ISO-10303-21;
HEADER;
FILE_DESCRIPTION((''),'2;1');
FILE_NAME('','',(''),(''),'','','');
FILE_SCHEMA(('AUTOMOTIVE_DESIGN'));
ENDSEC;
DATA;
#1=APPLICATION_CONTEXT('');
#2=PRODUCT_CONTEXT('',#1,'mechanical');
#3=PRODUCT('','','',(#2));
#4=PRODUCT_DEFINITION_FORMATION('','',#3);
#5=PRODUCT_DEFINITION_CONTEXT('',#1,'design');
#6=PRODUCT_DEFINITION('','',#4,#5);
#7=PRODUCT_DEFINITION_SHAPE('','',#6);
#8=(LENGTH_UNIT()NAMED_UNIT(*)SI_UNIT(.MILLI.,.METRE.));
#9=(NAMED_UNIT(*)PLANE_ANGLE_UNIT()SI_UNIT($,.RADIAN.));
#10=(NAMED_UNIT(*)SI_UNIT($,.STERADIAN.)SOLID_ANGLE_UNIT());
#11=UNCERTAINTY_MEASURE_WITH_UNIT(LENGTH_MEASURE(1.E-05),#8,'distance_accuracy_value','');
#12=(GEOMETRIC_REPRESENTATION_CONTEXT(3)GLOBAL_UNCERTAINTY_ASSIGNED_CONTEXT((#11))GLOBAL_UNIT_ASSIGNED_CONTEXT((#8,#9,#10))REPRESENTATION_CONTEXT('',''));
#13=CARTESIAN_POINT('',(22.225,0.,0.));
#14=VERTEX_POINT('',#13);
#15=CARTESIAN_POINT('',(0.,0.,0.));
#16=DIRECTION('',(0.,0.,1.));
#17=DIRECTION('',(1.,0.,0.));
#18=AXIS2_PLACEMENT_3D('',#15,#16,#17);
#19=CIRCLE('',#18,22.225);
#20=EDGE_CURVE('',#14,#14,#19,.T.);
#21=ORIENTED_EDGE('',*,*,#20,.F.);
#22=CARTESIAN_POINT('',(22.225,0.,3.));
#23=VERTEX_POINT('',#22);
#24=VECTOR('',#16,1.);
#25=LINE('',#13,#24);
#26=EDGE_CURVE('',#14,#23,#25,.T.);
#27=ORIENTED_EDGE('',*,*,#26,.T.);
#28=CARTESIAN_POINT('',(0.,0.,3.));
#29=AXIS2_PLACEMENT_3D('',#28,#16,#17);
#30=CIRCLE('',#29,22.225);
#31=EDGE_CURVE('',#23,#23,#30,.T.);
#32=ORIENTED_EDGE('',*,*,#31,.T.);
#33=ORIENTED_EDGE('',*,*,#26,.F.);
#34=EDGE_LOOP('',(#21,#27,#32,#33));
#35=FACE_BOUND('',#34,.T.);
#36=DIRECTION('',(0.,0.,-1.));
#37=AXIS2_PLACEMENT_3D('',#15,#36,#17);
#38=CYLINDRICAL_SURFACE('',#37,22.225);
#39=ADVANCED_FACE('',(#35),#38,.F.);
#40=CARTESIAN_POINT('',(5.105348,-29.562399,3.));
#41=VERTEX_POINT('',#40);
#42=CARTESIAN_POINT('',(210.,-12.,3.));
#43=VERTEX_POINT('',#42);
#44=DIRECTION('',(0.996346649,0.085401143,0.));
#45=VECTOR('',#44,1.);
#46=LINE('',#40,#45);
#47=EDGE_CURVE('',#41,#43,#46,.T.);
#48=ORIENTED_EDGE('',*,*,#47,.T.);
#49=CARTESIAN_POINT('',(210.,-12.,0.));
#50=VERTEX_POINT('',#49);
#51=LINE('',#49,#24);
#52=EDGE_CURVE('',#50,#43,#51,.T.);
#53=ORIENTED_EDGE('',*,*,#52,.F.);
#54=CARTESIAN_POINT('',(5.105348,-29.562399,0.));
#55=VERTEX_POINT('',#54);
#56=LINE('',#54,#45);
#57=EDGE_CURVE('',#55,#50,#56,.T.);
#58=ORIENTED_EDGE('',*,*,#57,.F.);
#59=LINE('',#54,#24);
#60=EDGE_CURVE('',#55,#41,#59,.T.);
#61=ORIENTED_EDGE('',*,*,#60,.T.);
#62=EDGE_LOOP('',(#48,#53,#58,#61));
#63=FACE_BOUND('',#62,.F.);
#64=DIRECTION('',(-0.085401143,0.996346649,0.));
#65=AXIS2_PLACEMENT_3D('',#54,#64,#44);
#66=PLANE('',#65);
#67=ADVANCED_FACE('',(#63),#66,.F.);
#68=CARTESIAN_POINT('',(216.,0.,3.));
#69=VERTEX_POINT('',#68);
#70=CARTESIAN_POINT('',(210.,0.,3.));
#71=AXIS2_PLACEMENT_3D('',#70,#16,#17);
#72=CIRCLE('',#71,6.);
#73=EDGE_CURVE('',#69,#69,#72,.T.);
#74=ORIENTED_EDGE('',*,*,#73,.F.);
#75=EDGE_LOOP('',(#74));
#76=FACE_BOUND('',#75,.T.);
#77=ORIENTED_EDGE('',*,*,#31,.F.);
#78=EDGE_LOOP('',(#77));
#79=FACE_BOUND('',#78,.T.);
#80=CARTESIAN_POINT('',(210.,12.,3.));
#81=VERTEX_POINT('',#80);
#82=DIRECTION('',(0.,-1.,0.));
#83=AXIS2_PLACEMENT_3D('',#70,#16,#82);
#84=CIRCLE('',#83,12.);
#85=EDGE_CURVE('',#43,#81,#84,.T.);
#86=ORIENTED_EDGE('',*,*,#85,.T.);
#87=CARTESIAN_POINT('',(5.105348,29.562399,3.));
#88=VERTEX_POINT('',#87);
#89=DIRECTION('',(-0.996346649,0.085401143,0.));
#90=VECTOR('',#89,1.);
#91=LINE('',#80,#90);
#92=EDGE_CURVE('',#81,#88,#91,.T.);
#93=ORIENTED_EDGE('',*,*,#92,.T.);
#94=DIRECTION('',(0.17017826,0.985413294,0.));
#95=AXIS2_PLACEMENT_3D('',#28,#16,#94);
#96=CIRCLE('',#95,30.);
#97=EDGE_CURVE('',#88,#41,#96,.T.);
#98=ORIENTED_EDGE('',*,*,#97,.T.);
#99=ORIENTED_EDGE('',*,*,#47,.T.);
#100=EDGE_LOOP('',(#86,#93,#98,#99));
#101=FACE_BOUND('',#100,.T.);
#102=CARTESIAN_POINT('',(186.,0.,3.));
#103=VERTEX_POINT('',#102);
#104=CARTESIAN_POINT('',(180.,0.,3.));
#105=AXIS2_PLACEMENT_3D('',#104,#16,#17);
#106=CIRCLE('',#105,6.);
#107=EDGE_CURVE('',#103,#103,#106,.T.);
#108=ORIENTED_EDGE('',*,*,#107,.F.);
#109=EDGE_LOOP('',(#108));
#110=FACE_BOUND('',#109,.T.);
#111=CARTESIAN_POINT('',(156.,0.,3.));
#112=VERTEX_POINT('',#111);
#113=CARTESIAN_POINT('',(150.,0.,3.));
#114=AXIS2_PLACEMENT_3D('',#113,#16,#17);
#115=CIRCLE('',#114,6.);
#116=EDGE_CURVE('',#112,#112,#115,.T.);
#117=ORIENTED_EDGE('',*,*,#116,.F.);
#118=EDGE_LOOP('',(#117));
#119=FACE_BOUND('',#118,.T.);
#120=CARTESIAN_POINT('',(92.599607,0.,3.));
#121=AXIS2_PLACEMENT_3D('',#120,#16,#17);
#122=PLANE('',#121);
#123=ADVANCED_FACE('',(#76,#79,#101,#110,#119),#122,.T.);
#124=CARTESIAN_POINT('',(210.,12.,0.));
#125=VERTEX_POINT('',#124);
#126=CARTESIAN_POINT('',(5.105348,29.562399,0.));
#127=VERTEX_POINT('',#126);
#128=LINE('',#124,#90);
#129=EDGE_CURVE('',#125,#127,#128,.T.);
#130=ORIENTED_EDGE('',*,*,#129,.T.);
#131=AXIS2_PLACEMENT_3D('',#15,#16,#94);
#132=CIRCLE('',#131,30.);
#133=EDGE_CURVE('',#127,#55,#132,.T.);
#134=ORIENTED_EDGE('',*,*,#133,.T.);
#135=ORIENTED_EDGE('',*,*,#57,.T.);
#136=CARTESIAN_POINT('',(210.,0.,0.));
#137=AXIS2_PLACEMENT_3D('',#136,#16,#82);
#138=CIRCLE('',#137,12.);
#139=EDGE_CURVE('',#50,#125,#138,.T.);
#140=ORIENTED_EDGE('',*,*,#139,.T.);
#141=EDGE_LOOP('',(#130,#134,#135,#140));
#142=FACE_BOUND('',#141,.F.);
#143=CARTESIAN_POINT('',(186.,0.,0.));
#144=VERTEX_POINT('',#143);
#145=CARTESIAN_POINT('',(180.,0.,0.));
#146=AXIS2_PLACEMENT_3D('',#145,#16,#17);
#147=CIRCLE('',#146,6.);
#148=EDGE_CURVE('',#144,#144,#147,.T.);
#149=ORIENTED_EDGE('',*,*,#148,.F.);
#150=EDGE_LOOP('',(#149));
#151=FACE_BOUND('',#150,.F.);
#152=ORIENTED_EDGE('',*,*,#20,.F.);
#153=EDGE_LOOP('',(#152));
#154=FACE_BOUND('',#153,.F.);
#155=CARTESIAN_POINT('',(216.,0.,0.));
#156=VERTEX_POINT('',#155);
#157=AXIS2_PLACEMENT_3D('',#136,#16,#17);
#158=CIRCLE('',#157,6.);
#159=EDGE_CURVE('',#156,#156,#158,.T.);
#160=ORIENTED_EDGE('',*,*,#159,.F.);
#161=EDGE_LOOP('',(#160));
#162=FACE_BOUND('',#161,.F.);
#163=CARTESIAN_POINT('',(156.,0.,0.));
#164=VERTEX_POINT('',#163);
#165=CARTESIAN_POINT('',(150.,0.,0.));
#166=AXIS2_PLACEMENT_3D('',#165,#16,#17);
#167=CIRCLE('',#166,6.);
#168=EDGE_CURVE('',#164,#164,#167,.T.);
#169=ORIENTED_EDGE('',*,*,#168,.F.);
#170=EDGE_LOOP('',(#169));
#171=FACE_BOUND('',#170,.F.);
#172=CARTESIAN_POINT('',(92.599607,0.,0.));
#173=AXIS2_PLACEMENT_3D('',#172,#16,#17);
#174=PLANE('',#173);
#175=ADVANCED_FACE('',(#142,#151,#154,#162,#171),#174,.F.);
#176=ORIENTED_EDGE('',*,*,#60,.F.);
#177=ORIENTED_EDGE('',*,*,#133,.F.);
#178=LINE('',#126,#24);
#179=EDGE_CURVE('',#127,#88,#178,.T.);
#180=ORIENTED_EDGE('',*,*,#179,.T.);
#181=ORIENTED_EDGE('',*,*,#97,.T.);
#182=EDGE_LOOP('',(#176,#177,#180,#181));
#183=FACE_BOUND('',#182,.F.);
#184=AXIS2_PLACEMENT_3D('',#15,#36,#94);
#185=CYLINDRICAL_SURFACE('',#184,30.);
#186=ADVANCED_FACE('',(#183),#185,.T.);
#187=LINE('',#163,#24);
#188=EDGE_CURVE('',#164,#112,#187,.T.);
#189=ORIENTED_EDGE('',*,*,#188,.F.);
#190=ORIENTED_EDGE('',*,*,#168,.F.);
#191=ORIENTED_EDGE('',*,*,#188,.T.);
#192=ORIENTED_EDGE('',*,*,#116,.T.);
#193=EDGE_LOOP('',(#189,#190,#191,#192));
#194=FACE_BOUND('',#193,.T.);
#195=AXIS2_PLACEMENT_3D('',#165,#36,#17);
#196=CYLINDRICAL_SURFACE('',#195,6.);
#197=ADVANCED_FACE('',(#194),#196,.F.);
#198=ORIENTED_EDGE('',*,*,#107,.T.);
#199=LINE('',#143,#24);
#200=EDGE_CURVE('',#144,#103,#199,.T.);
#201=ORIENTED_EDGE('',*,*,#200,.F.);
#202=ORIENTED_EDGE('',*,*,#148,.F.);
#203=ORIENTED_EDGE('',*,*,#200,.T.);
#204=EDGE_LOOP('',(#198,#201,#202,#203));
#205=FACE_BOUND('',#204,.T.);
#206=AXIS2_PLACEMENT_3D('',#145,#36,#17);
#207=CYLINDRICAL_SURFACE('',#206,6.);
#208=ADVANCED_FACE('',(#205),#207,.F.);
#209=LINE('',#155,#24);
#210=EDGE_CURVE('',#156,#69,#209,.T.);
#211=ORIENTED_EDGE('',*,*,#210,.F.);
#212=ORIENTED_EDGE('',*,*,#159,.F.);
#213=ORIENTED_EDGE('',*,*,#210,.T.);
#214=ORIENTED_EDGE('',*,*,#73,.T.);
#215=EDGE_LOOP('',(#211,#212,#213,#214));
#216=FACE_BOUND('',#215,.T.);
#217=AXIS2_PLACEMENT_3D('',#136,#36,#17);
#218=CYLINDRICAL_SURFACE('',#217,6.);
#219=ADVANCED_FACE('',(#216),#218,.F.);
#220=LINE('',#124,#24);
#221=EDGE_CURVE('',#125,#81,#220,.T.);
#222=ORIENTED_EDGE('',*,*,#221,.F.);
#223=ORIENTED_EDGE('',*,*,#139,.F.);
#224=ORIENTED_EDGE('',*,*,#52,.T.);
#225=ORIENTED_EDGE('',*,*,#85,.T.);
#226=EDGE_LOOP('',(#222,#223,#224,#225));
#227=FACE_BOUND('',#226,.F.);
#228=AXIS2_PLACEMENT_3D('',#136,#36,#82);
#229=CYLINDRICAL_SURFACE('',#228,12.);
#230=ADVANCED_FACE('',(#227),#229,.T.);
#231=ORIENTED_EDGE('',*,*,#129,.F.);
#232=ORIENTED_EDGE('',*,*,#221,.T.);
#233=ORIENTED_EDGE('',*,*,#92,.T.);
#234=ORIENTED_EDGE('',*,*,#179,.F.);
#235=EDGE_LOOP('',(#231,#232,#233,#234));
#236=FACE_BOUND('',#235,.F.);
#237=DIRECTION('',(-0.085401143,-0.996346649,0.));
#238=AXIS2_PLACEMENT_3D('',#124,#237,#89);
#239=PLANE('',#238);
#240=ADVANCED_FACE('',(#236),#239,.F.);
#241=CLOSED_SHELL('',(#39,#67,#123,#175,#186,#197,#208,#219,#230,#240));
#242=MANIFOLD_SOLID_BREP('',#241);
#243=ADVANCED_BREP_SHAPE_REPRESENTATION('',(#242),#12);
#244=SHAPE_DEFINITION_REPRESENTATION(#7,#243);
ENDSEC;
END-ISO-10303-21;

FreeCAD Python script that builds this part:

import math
import FreeCAD as App
import Part
import Sketcher
from FreeCAD import Vector

doc = App.newDocument("Part")
body = doc.addObject("PartDesign::Body", "Body")

sketch1 = body.newObject("Sketcher::SketchObject", "Sketch")
sketch1.AttachmentSupport = (doc.getObject("XY_Plane"), [""])
sketch1.MapMode = "FlatFace"
sketch1.addGeometry([
    Part.LineSegment(Vector(210, 12, 0), Vector(5, 30, 0)),
    Part.ArcOfCircle(Part.Circle(Vector(0, 0, 0), Vector(0, 0, 1), 30), math.radians(80), math.radians(280)),
    Part.LineSegment(Vector(5, -30, 0), Vector(210, -12, 0)),
    Part.ArcOfCircle(Part.Circle(Vector(210, 0, 0), Vector(0, 0, 1), 12), math.radians(-90), math.radians(90)),
    Part.Circle(Vector(0, 0, 0), Vector(0, 0, 1), 22),
    Part.Circle(Vector(150, 0, 0), Vector(0, 0, 1), 6),
    Part.Circle(Vector(180, 0, 0), Vector(0, 0, 1), 6),
    Part.Circle(Vector(210, 0, 0), Vector(0, 0, 1), 6),
], False)
sketch1.addConstraint([
    Sketcher.Constraint("Coincident", 0, 2, 1, 1),
    Sketcher.Constraint("Coincident", 1, 2, 2, 1),
    Sketcher.Constraint("Coincident", 2, 2, 3, 1),
    Sketcher.Constraint("Coincident", 3, 2, 0, 1),
    Sketcher.Constraint("Coincident", 1, 3, -1, 1),
    Sketcher.Constraint("Coincident", 4, 3, -1, 1),
    Sketcher.Constraint("Coincident", 7, 3, 3, 3),
    Sketcher.Constraint("Equal", 5, 6),
    Sketcher.Constraint("Equal", 6, 7),
    Sketcher.Constraint("Symmetric", 2, 2, 3, 2, -1),
    Sketcher.Constraint("PointOnObject", 5, 3, -1),
    Sketcher.Constraint("PointOnObject", 6, 3, -1),
    Sketcher.Constraint("Vertical", 0, 2, 1, 2),
    Sketcher.Constraint("Vertical", 7, 3, 2, 2),
    Sketcher.Constraint("Diameter", 5, 12.0),
    Sketcher.Constraint("Radius", 1, 30.0),
    Sketcher.Constraint("Radius", 3, 12.0),
    Sketcher.Constraint("Diameter", 4, 44.45),
    Sketcher.Constraint("DistanceX", -1, 1, 3, 3, 210.0),
    Sketcher.Constraint("DistanceX", -1, 1, 5, 3, 150.0),
    Sketcher.Constraint("DistanceX", -1, 1, 6, 3, 180.0),
    Sketcher.Constraint("DistanceY", -1, 1, 0, 2, 29.562399),
])
pad1 = body.newObject("PartDesign::Pad", "Pad")
pad1.Profile = sketch1
pad1.Length = 3

doc.recompute()
